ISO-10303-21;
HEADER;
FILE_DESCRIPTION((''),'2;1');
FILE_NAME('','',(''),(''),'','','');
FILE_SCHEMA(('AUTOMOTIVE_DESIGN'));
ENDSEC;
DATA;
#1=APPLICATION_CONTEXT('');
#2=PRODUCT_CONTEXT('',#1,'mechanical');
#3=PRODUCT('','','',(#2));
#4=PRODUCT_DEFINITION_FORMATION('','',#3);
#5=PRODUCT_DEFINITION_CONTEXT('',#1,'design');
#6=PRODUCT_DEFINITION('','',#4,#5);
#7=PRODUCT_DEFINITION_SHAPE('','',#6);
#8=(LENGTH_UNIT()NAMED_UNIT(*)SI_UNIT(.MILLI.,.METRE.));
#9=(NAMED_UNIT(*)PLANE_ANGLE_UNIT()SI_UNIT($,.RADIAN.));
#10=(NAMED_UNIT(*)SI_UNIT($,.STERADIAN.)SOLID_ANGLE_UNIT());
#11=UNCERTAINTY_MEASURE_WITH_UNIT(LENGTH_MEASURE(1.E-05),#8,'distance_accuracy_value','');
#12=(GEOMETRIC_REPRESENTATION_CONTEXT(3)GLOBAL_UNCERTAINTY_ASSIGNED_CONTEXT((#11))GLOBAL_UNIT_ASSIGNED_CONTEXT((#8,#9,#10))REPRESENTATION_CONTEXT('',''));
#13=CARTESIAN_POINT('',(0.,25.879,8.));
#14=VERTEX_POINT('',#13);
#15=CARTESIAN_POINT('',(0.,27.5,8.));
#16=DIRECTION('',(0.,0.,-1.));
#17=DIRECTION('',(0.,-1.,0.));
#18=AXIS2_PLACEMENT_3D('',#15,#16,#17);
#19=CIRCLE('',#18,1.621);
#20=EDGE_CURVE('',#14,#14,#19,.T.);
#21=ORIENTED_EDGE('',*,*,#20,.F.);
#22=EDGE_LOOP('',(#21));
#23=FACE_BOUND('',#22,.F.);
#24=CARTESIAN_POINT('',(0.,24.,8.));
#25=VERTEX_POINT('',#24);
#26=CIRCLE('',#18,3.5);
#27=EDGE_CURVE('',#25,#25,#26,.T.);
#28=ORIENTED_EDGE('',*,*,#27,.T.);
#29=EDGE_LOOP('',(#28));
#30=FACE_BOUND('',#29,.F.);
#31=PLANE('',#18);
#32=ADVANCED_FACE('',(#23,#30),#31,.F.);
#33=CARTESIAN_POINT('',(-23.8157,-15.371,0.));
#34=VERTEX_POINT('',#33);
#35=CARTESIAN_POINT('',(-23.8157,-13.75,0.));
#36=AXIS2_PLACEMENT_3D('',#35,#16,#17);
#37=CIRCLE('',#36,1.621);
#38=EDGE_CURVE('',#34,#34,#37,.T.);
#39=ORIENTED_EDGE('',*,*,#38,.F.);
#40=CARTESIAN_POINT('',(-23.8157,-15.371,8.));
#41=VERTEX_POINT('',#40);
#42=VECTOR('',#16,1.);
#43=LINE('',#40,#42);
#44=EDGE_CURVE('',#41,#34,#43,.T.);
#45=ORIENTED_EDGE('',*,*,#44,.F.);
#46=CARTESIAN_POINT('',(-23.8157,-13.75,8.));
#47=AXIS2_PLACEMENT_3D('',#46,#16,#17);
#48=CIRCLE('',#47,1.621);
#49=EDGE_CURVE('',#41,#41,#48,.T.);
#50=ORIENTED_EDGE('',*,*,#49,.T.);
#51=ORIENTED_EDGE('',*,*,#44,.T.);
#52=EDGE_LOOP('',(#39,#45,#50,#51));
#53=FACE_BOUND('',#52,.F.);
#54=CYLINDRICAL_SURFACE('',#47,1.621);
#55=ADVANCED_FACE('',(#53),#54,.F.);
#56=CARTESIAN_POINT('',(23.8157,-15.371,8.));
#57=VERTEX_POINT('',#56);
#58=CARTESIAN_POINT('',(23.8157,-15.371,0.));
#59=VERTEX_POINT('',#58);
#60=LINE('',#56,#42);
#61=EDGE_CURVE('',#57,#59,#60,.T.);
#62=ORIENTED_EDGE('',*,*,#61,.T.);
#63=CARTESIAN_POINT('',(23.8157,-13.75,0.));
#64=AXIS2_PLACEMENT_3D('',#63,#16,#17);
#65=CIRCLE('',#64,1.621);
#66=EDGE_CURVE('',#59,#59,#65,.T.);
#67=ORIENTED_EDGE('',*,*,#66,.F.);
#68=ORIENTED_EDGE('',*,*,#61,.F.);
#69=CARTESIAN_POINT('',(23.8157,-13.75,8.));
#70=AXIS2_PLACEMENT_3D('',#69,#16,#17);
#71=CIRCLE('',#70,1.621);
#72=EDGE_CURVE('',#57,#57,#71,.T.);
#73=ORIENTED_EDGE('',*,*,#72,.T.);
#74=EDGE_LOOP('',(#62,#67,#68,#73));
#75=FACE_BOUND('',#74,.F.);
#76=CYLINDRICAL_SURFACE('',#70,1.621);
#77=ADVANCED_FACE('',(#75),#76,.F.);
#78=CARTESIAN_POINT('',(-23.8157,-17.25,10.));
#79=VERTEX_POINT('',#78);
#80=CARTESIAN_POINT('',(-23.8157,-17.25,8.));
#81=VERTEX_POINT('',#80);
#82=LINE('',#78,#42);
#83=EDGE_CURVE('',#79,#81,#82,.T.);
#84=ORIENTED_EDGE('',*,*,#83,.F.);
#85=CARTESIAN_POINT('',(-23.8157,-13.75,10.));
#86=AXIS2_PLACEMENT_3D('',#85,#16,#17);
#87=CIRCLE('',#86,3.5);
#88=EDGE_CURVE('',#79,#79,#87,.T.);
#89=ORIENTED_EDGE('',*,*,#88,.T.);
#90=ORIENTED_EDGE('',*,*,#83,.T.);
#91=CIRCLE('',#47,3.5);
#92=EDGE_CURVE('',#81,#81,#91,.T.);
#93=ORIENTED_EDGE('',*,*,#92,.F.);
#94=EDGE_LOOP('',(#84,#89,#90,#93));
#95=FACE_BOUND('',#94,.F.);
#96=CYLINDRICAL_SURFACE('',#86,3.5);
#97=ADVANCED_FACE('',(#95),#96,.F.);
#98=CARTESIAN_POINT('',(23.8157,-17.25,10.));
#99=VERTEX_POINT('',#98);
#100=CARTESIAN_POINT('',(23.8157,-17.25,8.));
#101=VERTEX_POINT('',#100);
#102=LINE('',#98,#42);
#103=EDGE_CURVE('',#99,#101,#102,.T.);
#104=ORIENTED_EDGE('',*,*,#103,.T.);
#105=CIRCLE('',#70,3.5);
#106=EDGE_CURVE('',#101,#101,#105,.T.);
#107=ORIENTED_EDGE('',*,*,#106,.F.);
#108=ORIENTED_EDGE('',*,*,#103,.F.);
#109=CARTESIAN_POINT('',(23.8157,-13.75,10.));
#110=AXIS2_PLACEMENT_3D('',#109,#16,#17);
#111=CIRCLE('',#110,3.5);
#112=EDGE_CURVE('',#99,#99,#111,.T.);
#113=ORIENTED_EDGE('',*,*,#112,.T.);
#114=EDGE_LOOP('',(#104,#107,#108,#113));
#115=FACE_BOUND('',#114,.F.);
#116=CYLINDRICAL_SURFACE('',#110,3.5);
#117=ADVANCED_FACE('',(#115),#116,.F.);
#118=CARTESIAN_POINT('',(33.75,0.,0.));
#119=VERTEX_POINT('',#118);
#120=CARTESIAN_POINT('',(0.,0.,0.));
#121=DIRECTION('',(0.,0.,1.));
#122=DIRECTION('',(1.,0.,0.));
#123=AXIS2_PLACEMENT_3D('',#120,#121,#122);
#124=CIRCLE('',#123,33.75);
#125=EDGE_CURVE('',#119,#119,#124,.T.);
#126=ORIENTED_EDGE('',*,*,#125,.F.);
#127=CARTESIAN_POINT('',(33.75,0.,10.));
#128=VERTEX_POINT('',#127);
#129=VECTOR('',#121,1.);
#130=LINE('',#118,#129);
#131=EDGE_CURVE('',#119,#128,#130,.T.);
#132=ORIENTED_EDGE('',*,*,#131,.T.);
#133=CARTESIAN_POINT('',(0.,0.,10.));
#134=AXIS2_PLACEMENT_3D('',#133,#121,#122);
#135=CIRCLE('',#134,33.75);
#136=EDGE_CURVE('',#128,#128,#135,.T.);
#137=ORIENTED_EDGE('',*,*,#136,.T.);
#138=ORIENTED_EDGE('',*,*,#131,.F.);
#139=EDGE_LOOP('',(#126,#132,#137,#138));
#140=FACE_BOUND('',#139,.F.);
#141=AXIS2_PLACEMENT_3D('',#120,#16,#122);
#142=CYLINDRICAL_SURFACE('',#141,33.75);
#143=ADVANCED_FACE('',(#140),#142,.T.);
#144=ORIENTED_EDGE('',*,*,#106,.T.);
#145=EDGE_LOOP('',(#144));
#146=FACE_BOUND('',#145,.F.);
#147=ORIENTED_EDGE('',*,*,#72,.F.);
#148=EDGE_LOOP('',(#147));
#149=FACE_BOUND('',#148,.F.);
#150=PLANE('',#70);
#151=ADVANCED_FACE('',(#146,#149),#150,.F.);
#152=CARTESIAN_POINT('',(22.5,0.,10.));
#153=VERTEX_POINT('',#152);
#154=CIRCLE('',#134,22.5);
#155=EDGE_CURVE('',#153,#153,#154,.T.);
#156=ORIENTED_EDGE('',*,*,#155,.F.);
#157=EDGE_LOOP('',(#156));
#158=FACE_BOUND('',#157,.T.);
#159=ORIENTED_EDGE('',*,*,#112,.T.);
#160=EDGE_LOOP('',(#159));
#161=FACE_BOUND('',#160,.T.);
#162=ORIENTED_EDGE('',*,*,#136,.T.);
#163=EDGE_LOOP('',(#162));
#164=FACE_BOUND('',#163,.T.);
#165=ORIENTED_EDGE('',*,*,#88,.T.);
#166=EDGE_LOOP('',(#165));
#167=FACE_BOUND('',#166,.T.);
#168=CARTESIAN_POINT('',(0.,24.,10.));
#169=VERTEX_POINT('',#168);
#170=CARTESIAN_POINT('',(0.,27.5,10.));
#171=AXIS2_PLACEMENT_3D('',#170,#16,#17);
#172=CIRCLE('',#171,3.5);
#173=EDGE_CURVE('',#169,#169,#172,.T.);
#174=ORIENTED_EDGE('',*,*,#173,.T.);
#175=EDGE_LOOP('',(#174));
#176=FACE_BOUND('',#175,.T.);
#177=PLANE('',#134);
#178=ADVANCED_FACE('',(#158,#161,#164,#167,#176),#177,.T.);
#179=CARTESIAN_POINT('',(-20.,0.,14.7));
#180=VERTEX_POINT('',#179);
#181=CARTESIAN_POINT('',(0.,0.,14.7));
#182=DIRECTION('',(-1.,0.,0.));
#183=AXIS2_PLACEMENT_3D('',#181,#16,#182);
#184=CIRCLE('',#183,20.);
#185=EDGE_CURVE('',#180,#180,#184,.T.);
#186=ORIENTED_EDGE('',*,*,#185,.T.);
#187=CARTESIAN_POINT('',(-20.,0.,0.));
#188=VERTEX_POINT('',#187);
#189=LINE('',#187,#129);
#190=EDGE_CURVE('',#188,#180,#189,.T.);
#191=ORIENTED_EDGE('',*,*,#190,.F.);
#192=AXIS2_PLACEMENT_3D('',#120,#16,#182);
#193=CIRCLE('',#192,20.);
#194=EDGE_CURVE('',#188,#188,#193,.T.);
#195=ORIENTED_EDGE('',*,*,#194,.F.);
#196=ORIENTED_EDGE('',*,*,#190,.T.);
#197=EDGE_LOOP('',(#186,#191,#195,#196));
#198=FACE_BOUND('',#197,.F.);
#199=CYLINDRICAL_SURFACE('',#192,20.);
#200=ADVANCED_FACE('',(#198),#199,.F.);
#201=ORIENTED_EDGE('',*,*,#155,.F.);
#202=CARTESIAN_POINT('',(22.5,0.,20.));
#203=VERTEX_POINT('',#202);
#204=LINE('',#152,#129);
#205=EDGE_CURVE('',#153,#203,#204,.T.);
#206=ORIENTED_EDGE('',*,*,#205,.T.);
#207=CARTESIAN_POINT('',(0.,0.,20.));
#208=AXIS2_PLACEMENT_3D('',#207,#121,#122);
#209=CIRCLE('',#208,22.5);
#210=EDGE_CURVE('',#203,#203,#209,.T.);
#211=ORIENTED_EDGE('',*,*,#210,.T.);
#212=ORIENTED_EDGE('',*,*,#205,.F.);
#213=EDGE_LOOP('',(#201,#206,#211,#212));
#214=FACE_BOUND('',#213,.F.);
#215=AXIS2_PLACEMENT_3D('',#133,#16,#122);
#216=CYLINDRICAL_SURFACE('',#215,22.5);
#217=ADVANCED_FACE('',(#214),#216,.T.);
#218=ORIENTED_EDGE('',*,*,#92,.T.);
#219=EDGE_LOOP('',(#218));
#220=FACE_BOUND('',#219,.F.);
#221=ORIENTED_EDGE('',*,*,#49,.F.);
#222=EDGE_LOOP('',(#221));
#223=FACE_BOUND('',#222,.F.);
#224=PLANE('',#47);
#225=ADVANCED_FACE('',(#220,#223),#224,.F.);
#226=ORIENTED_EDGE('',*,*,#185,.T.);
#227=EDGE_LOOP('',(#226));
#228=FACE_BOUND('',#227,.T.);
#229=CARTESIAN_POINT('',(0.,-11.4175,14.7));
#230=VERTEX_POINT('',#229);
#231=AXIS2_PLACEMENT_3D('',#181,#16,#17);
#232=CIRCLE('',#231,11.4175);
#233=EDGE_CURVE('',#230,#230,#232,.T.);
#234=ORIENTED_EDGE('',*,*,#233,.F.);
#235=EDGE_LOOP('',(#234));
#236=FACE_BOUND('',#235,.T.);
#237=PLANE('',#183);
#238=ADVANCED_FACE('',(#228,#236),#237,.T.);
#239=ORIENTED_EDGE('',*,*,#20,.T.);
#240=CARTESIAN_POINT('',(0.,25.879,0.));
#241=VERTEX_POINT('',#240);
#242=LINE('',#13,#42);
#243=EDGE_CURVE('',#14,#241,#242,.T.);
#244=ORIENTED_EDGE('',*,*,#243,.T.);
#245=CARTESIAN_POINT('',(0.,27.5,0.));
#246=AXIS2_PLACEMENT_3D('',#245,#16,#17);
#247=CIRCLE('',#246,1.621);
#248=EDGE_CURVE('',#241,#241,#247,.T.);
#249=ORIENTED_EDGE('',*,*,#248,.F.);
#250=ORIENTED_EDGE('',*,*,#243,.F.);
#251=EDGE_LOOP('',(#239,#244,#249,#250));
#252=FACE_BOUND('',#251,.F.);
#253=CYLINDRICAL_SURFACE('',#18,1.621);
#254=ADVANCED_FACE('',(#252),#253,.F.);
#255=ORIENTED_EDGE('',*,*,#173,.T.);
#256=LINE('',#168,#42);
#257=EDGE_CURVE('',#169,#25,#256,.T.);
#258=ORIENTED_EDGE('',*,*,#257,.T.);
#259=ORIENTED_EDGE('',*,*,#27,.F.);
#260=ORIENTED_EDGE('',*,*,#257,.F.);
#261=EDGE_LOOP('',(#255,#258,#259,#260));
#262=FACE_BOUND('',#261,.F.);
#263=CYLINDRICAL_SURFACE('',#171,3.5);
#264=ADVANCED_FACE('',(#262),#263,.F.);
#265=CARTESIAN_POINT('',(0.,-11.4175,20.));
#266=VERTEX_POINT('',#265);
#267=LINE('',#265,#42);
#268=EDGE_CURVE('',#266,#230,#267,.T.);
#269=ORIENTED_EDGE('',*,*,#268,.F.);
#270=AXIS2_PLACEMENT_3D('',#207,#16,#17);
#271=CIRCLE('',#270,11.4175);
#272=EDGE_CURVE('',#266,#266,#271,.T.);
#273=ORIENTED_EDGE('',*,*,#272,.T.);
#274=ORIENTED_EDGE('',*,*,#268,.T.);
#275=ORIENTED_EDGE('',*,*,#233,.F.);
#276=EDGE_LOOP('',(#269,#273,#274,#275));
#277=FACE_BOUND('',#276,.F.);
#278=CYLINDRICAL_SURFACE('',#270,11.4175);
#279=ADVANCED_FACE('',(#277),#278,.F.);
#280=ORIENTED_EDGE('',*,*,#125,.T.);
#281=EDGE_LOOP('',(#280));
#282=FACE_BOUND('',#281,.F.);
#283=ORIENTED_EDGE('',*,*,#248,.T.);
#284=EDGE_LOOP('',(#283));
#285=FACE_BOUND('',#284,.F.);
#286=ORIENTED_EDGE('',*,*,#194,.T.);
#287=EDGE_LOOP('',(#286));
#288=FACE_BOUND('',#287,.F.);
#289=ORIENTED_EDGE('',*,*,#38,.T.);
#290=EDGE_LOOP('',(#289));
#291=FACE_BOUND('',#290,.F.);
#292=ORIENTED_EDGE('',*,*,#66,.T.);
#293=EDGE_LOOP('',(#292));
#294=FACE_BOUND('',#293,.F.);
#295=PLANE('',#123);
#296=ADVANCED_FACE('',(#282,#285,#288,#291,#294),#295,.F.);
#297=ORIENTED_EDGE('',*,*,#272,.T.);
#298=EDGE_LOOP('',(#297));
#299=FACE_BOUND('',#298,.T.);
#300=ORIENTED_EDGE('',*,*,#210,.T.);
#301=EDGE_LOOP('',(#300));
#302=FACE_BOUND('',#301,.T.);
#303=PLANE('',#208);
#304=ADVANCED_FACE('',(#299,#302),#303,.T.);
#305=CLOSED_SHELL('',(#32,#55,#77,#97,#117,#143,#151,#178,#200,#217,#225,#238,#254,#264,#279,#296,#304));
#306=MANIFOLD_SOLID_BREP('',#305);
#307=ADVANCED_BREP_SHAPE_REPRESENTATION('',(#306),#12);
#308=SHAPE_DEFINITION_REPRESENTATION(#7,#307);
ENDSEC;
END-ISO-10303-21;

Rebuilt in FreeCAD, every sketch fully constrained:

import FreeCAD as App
import Part
import Sketcher
from FreeCAD import Vector

doc = App.newDocument("Part")
params = doc.addObject("Spreadsheet::Sheet", "Params")
for row, (alias, value) in enumerate([
    ("sketch1_diameter", "67.5 mm"),
    ("pad1_length", "10 mm"),
    ("sketch2_diameter", "45 mm"),
    ("pad2_length", "10 mm"),
    ("hole_diameter", "22.835 mm"),
    ("sketch4_diameter", "40 mm"),
    ("pocket1_length", "14.7 mm"),
    ("hole2_diameter", "3.242 mm"),
    ("hole2_cbore_diameter", "7 mm"),
    ("hole2_cbore_depth", "2 mm"),
], start=1):
    params.set(f"A{row}", alias)
    params.set(f"B{row}", "=" + value)
    params.setAlias(f"B{row}", alias)

body = doc.addObject("PartDesign::Body", "Body")

# Sketch on XY plane
sketch1 = body.newObject("Sketcher::SketchObject", "Sketch")
sketch1.AttachmentSupport = (doc.getObject("XY_Plane"), [""])
sketch1.MapMode = "FlatFace"
sketch1.addGeometry(Part.Circle(Vector(0, 0, 0), Vector(0, 0, 1), 33.75), False)
sketch1.addConstraint([
    Sketcher.Constraint("Coincident", 0, 3, -1, 1),
    Sketcher.Constraint("Diameter", 0, 67.5),
])
sketch1.setExpression("Constraints[1]", "Params.sketch1_diameter")
pad1 = body.newObject("PartDesign::Pad", "Pad")
pad1.Profile = sketch1
pad1.setExpression("Length", "Params.pad1_length")

# Sketch on XY plane
sketch2 = body.newObject("Sketcher::SketchObject", "Sketch001")
sketch2.AttachmentSupport = (doc.getObject("XY_Plane"), [""])
sketch2.MapMode = "FlatFace"
sketch2.AttachmentOffset = App.Placement(Vector(0, 0, 10), App.Rotation())
sketch2.addGeometry(Part.Circle(Vector(0, 0, 0), Vector(0, 0, 1), 22.5), False)
sketch2.addConstraint([
    Sketcher.Constraint("Coincident", 0, 3, -1, 1),
    Sketcher.Constraint("Diameter", 0, 45.0),
])
sketch2.setExpression("Constraints[1]", "Params.sketch2_diameter")
pad2 = body.newObject("PartDesign::Pad", "Pad001")
pad2.Profile = sketch2
pad2.setExpression("Length", "Params.pad2_length")

# Sketch on XY plane
sketch3 = body.newObject("Sketcher::SketchObject", "Sketch002")
sketch3.AttachmentSupport = (doc.getObject("XY_Plane"), [""])
sketch3.MapMode = "FlatFace"
sketch3.AttachmentOffset = App.Placement(Vector(0, 0, 20), App.Rotation())
sketch3.addGeometry(Part.Circle(Vector(0, 0, 0), Vector(0, 0, 1), 11.4175), False)
sketch3.addConstraint([
    Sketcher.Constraint("Coincident", 0, 3, -1, 1),
    Sketcher.Constraint("Diameter", 0, 22.835),
])
doc.recompute()
hole = body.newObject("PartDesign::Hole", "Hole")
hole.Profile = sketch3
hole.ThreadType = "None"
hole.setExpression("Diameter", "Params.hole_diameter")
hole.DepthType = "ThroughAll"

# Sketch on XY plane
sketch4 = body.newObject("Sketcher::SketchObject", "Sketch003")
sketch4.AttachmentSupport = (doc.getObject("XY_Plane"), [""])
sketch4.MapMode = "FlatFace"
sketch4.addGeometry(Part.Circle(Vector(0, 0, 0), Vector(0, 0, 1), 20), False)
sketch4.addConstraint([
    Sketcher.Constraint("Coincident", 0, 3, -1, 1),
    Sketcher.Constraint("Diameter", 0, 40.0),
])
sketch4.setExpression("Constraints[1]", "Params.sketch4_diameter")
pocket1 = body.newObject("PartDesign::Pocket", "Pocket")
pocket1.Profile = sketch4
pocket1.setExpression("Length", "Params.pocket1_length")
pocket1.Reversed = True

# Sketch on XY plane
sketch5 = body.newObject("Sketcher::SketchObject", "Sketch004")
sketch5.AttachmentSupport = (doc.getObject("XY_Plane"), [""])
sketch5.MapMode = "FlatFace"
sketch5.AttachmentOffset = App.Placement(Vector(0, 0, 10), App.Rotation())
sketch5.addGeometry([
    Part.Circle(Vector(0, 27.5, 0), Vector(0, 0, 1), 1.621),
    Part.Circle(Vector(-23.8157, -13.75, 0), Vector(0, 0, 1), 1.621),
    Part.Circle(Vector(23.8157, -13.75, 0), Vector(0, 0, 1), 1.621),
], False)
sketch5.addConstraint([
    Sketcher.Constraint("Equal", 0, 1),
    Sketcher.Constraint("Equal", 1, 2),
    Sketcher.Constraint("Symmetric", 1, 3, 2, 3, -2),
    Sketcher.Constraint("PointOnObject", 0, 3, -2),
    Sketcher.Constraint("Diameter", 0, 3.242),
    Sketcher.Constraint("DistanceY", -1, 1, 0, 3, 27.5),
    Sketcher.Constraint("DistanceY", 1, 3, -1, 1, 13.75),
    Sketcher.Constraint("DistanceX", 1, 3, -1, 1, 23.8157),
])
doc.recompute()
hole2 = body.newObject("PartDesign::Hole", "Hole001")
hole2.Profile = sketch5
hole2.ThreadType = "None"
hole2.setExpression("Diameter", "Params.hole2_diameter")
hole2.DepthType = "ThroughAll"
hole2.HoleCutType = "Counterbore"
hole2.setExpression("HoleCutDiameter", "Params.hole2_cbore_diameter")
hole2.setExpression("HoleCutDepth", "Params.hole2_cbore_depth")

doc.recompute()
